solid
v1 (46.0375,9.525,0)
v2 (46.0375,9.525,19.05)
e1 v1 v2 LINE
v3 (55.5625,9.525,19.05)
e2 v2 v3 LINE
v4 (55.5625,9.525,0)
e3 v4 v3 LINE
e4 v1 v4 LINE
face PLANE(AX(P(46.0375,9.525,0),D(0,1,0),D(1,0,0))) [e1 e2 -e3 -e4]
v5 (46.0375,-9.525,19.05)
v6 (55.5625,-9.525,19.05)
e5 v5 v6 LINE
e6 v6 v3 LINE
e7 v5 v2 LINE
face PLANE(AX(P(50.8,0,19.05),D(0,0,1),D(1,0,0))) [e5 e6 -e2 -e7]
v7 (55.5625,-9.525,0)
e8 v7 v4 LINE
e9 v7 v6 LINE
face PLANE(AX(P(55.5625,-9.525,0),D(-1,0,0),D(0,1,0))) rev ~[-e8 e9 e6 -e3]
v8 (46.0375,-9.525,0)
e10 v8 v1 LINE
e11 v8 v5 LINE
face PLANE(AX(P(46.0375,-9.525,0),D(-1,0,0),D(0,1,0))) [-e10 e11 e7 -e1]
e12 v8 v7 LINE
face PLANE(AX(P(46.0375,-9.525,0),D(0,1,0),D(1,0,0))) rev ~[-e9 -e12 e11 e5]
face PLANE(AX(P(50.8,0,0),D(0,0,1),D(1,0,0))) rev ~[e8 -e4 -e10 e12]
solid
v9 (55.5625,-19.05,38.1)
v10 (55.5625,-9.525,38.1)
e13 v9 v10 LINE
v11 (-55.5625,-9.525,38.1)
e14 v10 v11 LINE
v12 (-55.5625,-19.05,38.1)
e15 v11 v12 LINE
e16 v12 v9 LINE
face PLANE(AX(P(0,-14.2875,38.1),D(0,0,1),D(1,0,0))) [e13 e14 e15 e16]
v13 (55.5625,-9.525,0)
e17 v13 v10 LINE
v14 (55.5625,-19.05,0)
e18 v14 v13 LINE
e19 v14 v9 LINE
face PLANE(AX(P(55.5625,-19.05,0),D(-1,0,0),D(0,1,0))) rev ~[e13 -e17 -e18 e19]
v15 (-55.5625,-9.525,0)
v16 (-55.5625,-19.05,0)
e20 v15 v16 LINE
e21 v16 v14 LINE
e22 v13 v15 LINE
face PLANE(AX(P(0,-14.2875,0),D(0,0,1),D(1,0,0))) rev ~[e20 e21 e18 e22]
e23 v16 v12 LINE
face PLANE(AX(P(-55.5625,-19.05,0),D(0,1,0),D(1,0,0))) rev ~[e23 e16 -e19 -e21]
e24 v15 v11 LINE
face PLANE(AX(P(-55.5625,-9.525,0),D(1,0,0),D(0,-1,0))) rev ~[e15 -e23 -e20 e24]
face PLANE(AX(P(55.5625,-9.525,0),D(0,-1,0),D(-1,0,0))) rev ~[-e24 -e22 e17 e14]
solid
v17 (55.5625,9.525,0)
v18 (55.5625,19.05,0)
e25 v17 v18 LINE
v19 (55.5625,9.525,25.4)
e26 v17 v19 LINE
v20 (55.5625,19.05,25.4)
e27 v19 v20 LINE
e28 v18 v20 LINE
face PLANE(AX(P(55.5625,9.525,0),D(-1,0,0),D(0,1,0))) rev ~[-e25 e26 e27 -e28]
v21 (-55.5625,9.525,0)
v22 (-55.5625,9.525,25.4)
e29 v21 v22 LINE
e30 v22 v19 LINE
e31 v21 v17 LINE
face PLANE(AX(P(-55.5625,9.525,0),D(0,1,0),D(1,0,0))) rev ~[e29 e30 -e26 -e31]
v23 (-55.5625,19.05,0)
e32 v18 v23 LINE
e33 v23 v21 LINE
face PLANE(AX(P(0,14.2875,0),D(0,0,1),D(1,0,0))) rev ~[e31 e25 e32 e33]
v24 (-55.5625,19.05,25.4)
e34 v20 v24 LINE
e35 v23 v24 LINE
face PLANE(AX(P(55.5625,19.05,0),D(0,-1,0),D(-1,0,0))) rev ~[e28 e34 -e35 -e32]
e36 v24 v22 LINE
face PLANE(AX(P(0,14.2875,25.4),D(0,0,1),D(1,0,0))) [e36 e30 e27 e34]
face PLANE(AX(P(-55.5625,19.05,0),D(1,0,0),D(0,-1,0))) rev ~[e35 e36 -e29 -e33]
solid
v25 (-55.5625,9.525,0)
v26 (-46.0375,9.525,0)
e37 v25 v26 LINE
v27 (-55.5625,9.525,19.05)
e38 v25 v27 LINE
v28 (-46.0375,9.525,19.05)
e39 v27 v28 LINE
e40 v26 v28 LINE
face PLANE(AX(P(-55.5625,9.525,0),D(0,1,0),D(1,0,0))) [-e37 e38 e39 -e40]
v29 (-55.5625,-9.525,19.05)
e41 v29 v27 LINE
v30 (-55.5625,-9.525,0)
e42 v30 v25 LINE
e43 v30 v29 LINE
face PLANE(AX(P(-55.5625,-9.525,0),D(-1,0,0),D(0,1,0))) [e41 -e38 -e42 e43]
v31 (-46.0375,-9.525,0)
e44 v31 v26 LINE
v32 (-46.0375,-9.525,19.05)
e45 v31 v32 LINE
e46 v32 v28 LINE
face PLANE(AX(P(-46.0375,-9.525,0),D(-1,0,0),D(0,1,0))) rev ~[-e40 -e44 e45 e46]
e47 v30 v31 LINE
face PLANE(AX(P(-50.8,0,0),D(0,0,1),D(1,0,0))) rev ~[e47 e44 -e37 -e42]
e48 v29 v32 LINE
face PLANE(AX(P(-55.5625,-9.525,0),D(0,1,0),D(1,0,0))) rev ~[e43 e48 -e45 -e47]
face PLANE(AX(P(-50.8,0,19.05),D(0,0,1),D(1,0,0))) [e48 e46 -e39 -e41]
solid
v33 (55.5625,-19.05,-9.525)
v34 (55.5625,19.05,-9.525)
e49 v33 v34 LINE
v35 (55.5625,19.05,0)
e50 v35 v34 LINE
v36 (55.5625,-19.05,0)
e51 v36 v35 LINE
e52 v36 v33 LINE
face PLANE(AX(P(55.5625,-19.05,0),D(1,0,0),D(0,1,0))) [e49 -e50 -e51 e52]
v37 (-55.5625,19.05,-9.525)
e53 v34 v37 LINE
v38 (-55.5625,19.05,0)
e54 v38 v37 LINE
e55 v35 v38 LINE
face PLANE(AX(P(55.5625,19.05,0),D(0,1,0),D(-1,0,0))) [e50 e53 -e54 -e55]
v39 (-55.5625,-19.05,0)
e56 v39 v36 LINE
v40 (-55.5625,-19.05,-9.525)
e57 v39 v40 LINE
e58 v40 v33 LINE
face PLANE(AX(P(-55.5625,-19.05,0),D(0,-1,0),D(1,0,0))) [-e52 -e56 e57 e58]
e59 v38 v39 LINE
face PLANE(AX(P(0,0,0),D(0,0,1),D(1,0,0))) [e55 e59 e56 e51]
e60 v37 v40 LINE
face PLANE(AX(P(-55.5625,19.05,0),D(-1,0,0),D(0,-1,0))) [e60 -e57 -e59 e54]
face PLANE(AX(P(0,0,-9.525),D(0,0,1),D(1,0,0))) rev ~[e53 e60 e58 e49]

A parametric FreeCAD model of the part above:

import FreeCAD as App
import Part
import Sketcher
from FreeCAD import Vector
Q = App.Units.Quantity


def add_polygon(sketch, points):
    """Adds a closed chain of lines whose ends are joined by coincident constraints."""
    first, n = sketch.GeometryCount, len(points)
    for a, b in zip(points, points[1:] + points[:1]):
        sketch.addGeometry(Part.LineSegment(App.Vector(*a, 0), App.Vector(*b, 0)), False)
    for i in range(n):
        sketch.addConstraint(Sketcher.Constraint("Coincident", first + i, 2, first + (i + 1) % n, 1))

doc = App.newDocument("Part")
body = doc.addObject("PartDesign::Body", "Body")

# Sketch on XY plane
sketch1 = doc.addObject("Sketcher::SketchObject", "Sketch")
body.addObject(sketch1)
sketch1.AttachmentSupport = (doc.XY_Plane, [""])
sketch1.MapMode = "FlatFace"
add_polygon(sketch1, [(-55.5625, -19.05), (55.5625, -19.05), (55.5625, 19.05), (-55.5625, 19.05)])  # lines 0-3
sketch1.addConstraint(Sketcher.Constraint("Horizontal", 0))
sketch1.addConstraint(Sketcher.Constraint("Vertical", 1))
sketch1.addConstraint(Sketcher.Constraint("Horizontal", 2))
sketch1.addConstraint(Sketcher.Constraint("Vertical", 3))
sketch1.addConstraint(Sketcher.Constraint("Symmetric", 0, 2, 2, 2, -1, 1))
sketch1.addConstraint(Sketcher.Constraint("DistanceY", 1, 1, 1, 2, Q("1.5 in")))
sketch1.addConstraint(Sketcher.Constraint("DistanceX", 0, 1, 0, 2, Q("4.375 in")))
pad1 = doc.addObject("PartDesign::Pad", "Pad")
body.addObject(pad1)
pad1.Profile = sketch1
pad1.Length = Q("0.375 in")
pad1.Reversed = True
body2 = doc.addObject("PartDesign::Body", "Body001")
body2.AllowCompound = True

# Sketch on XY plane
sketch2 = doc.addObject("Sketcher::SketchObject", "Sketch001")
body2.addObject(sketch2)
sketch2.AttachmentSupport = (doc.getObject("XY_Plane001"), [""])
sketch2.MapMode = "FlatFace"
add_polygon(sketch2, [(46.0375, 9.525), (46.0375, -9.525), (55.5625, -9.525), (55.5625, 9.525)])  # lines 0-3
add_polygon(sketch2, [(-55.5625, 9.525), (-55.5625, -9.525), (-46.0375, -9.525), (-46.0375, 9.525)])  # lines 4-7
sketch2.addConstraint(Sketcher.Constraint("Vertical", 0))
sketch2.addConstraint(Sketcher.Constraint("Horizontal", 1))
sketch2.addConstraint(Sketcher.Constraint("Vertical", 2))
sketch2.addConstraint(Sketcher.Constraint("Horizontal", 3))
sketch2.addConstraint(Sketcher.Constraint("Vertical", 4))
sketch2.addConstraint(Sketcher.Constraint("Horizontal", 5))
sketch2.addConstraint(Sketcher.Constraint("Vertical", 6))
sketch2.addConstraint(Sketcher.Constraint("Horizontal", 7))
sketch2.addConstraint(Sketcher.Constraint("Symmetric", 2, 2, 4, 2, -1, 1))
sketch2.addConstraint(Sketcher.Constraint("Symmetric", 0, 2, 6, 2, -1, 1))
sketch2.addConstraint(Sketcher.Constraint("Horizontal", 1, 2, 4, 2))
sketch2.addConstraint(Sketcher.Constraint("DistanceX", 4, 2, 0, 2, Q("4 in")))
sketch2.addConstraint(Sketcher.Constraint("DistanceY", 0, 2, 0, 1, Q("0.75 in")))
sketch2.addConstraint(Sketcher.Constraint("DistanceX", 1, 1, 1, 2, Q("0.375 in")))
pad2 = doc.addObject("PartDesign::Pad", "Pad001")
body2.addObject(pad2)
pad2.Profile = sketch2
pad2.Length = Q("0.75 in")
body3 = doc.addObject("PartDesign::Body", "Body002")

# Sketch on XY plane
sketch3 = doc.addObject("Sketcher::SketchObject", "Sketch002")
body3.addObject(sketch3)
sketch3.AttachmentSupport = (doc.getObject("XY_Plane002"), [""])
sketch3.MapMode = "FlatFace"
add_polygon(sketch3, [(-55.5625, 9.525), (55.5625, 9.525), (55.5625, 19.05), (-55.5625, 19.05)])  # lines 0-3
sketch3.addConstraint(Sketcher.Constraint("Horizontal", 0))
sketch3.addConstraint(Sketcher.Constraint("Vertical", 1))
sketch3.addConstraint(Sketcher.Constraint("Horizontal", 2))
sketch3.addConstraint(Sketcher.Constraint("Vertical", 3))
sketch3.addConstraint(Sketcher.Constraint("DistanceX", 0, 1, 0, 2, Q("4.375 in")))
sketch3.addConstraint(Sketcher.Constraint("DistanceY", 1, 1, 1, 2, Q("0.375 in")))
sketch3.addConstraint(Sketcher.Constraint("DistanceY", -1, 1, 1, 2, Q("0.75 in")))
sketch3.addConstraint(Sketcher.Constraint("DistanceX", -1, 1, 0, 2, Q("2.1875 in")))
pad3 = doc.addObject("PartDesign::Pad", "Pad002")
body3.addObject(pad3)
pad3.Profile = sketch3
pad3.Length = Q("1 in")
body4 = doc.addObject("PartDesign::Body", "Body003")

# Sketch on XY plane
sketch4 = doc.addObject("Sketcher::SketchObject", "Sketch003")
body4.addObject(sketch4)
sketch4.AttachmentSupport = (doc.getObject("XY_Plane003"), [""])
sketch4.MapMode = "FlatFace"
add_polygon(sketch4, [(-55.5625, -9.525), (-55.5625, -19.05), (55.5625, -19.05), (55.5625, -9.525)])  # lines 0-3
sketch4.addConstraint(Sketcher.Constraint("Vertical", 0))
sketch4.addConstraint(Sketcher.Constraint("Horizontal", 1))
sketch4.addConstraint(Sketcher.Constraint("Vertical", 2))
sketch4.addConstraint(Sketcher.Constraint("Horizontal", 3))
sketch4.addConstraint(Sketcher.Constraint("DistanceX", 1, 1, 1, 2, Q("4.375 in")))
sketch4.addConstraint(Sketcher.Constraint("DistanceY", 0, 2, 0, 1, Q("0.375 in")))
sketch4.addConstraint(Sketcher.Constraint("DistanceY", 0, 2, -1, 1, Q("0.75 in")))
sketch4.addConstraint(Sketcher.Constraint("DistanceX", 0, 2, -1, 1, Q("2.1875 in")))
pad4 = doc.addObject("PartDesign::Pad", "Pad003")
body4.addObject(pad4)
pad4.Profile = sketch4
pad4.Length = Q("1.5 in")

doc.recompute()
